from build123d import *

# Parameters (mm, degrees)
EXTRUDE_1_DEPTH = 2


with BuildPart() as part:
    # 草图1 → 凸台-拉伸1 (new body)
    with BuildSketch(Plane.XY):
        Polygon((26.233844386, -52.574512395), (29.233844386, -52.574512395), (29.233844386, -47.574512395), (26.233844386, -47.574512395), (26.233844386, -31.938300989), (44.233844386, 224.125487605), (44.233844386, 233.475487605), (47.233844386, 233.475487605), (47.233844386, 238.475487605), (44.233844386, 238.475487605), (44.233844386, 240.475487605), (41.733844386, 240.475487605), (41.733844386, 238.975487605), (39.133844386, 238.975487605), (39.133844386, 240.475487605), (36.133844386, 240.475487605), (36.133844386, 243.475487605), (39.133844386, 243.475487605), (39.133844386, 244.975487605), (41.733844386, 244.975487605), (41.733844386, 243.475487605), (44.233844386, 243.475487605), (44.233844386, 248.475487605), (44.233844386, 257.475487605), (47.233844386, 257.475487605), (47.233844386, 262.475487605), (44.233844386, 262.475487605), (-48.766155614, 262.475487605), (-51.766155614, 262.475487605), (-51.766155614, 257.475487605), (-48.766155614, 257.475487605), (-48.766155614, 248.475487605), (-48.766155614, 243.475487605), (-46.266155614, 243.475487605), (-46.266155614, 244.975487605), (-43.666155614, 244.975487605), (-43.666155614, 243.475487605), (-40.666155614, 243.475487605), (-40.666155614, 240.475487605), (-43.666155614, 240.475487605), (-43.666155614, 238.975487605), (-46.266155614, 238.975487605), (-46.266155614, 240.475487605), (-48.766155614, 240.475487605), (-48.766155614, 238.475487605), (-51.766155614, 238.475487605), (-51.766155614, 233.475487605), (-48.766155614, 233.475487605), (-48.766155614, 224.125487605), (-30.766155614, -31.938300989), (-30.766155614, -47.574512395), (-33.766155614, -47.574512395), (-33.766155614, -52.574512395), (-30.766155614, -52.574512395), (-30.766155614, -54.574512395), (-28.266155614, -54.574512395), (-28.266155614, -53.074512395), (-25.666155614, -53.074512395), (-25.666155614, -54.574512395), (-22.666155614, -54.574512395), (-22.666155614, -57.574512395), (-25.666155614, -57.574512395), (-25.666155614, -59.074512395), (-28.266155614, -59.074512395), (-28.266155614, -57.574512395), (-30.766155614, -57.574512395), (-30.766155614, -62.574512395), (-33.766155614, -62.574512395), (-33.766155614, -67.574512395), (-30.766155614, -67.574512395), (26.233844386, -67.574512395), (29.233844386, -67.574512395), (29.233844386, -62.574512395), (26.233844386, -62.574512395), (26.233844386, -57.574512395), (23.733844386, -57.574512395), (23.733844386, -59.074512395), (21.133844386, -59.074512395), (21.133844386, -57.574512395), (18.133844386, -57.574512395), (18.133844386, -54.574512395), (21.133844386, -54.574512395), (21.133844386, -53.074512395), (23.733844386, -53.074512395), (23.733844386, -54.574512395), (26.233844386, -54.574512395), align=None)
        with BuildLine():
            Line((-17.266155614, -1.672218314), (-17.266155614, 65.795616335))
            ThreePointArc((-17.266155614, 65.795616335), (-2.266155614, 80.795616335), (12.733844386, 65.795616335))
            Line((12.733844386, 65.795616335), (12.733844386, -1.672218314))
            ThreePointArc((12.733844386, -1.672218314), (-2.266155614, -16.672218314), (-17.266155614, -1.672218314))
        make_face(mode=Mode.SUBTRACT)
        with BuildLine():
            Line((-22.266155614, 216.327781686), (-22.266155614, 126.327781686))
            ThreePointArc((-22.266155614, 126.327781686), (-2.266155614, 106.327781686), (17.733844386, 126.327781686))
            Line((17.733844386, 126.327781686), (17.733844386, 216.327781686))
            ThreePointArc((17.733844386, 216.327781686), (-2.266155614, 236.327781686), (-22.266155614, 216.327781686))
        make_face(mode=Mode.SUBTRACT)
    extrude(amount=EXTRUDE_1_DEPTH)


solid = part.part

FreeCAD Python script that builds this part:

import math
import FreeCAD as App
import Part
import Sketcher
from FreeCAD import Vector
Q = App.Units.Quantity

doc = App.newDocument("Part")
body = doc.addObject("PartDesign::Body", "Body")

# Sketch on XY plane
sketch1 = body.newObject("Sketcher::SketchObject", "Sketch")
sketch1.AttachmentSupport = (doc.getObject("XY_Plane"), [""])
sketch1.MapMode = "FlatFace"
sketch1.addGeometry([
    Part.LineSegment(Vector(26.233844, -52.574512, 0), Vector(29.233844, -52.574512, 0)),  # 0
    Part.LineSegment(Vector(29.233844, -52.574512, 0), Vector(29.233844, -47.574512, 0)),  # 1
    Part.LineSegment(Vector(29.233844, -47.574512, 0), Vector(26.233844, -47.574512, 0)),  # 2
    Part.LineSegment(Vector(26.233844, -47.574512, 0), Vector(26.233844, -31.938301, 0)),  # 3
    Part.LineSegment(Vector(26.233844, -31.938301, 0), Vector(44.233844, 224.125488, 0)),  # 4
    Part.LineSegment(Vector(44.233844, 224.125488, 0), Vector(44.233844, 233.475488, 0)),  # 5
    Part.LineSegment(Vector(44.233844, 233.475488, 0), Vector(47.233844, 233.475488, 0)),  # 6
    Part.LineSegment(Vector(47.233844, 233.475488, 0), Vector(47.233844, 238.475488, 0)),  # 7
    Part.LineSegment(Vector(47.233844, 238.475488, 0), Vector(44.233844, 238.475488, 0)),  # 8
    Part.LineSegment(Vector(44.233844, 238.475488, 0), Vector(44.233844, 240.475488, 0)),  # 9
    Part.LineSegment(Vector(44.233844, 240.475488, 0), Vector(41.733844, 240.475488, 0)),  # 10
    Part.LineSegment(Vector(41.733844, 240.475488, 0), Vector(41.733844, 238.975488, 0)),  # 11
    Part.LineSegment(Vector(41.733844, 238.975488, 0), Vector(39.133844, 238.975488, 0)),  # 12
    Part.LineSegment(Vector(39.133844, 238.975488, 0), Vector(39.133844, 240.475488, 0)),  # 13
    Part.LineSegment(Vector(39.133844, 240.475488, 0), Vector(36.133844, 240.475488, 0)),  # 14
    Part.LineSegment(Vector(36.133844, 240.475488, 0), Vector(36.133844, 243.475488, 0)),  # 15
    Part.LineSegment(Vector(36.133844, 243.475488, 0), Vector(39.133844, 243.475488, 0)),  # 16
    Part.LineSegment(Vector(39.133844, 243.475488, 0), Vector(39.133844, 244.975488, 0)),  # 17
    Part.LineSegment(Vector(39.133844, 244.975488, 0), Vector(41.733844, 244.975488, 0)),  # 18
    Part.LineSegment(Vector(41.733844, 244.975488, 0), Vector(41.733844, 243.475488, 0)),  # 19
    Part.LineSegment(Vector(41.733844, 243.475488, 0), Vector(44.233844, 243.475488, 0)),  # 20
    Part.LineSegment(Vector(44.233844, 243.475488, 0), Vector(44.233844, 257.475488, 0)),  # 21
    Part.LineSegment(Vector(44.233844, 257.475488, 0), Vector(47.233844, 257.475488, 0)),  # 22
    Part.LineSegment(Vector(47.233844, 257.475488, 0), Vector(47.233844, 262.475488, 0)),  # 23
    Part.LineSegment(Vector(47.233844, 262.475488, 0), Vector(-51.766156, 262.475488, 0)),  # 24
    Part.LineSegment(Vector(-51.766156, 262.475488, 0), Vector(-51.766156, 257.475488, 0)),  # 25
    Part.LineSegment(Vector(-51.766156, 257.475488, 0), Vector(-48.766156, 257.475488, 0)),  # 26
    Part.LineSegment(Vector(-48.766156, 257.475488, 0), Vector(-48.766156, 243.475488, 0)),  # 27
    Part.LineSegment(Vector(-48.766156, 243.475488, 0), Vector(-46.266156, 243.475488, 0)),  # 28
    Part.LineSegment(Vector(-46.266156, 243.475488, 0), Vector(-46.266156, 244.975488, 0)),  # 29
    Part.LineSegment(Vector(-46.266156, 244.975488, 0), Vector(-43.666156, 244.975488, 0)),  # 30
    Part.LineSegment(Vector(-43.666156, 244.975488, 0), Vector(-43.666156, 243.475488, 0)),  # 31
    Part.LineSegment(Vector(-43.666156, 243.475488, 0), Vector(-40.666156, 243.475488, 0)),  # 32
    Part.LineSegment(Vector(-40.666156, 243.475488, 0), Vector(-40.666156, 240.475488, 0)),  # 33
    Part.LineSegment(Vector(-40.666156, 240.475488, 0), Vector(-43.666156, 240.475488, 0)),  # 34
    Part.LineSegment(Vector(-43.666156, 240.475488, 0), Vector(-43.666156, 238.975488, 0)),  # 35
    Part.LineSegment(Vector(-43.666156, 238.975488, 0), Vector(-46.266156, 238.975488, 0)),  # 36
    Part.LineSegment(Vector(-46.266156, 238.975488, 0), Vector(-46.266156, 240.475488, 0)),  # 37
    Part.LineSegment(Vector(-46.266156, 240.475488, 0), Vector(-48.766156, 240.475488, 0)),  # 38
    Part.LineSegment(Vector(-48.766156, 240.475488, 0), Vector(-48.766156, 238.475488, 0)),  # 39
    Part.LineSegment(Vector(-48.766156, 238.475488, 0), Vector(-51.766156, 238.475488, 0)),  # 40
    Part.LineSegment(Vector(-51.766156, 238.475488, 0), Vector(-51.766156, 233.475488, 0)),  # 41
    Part.LineSegment(Vector(-51.766156, 233.475488, 0), Vector(-48.766156, 233.475488, 0)),  # 42
    Part.LineSegment(Vector(-48.766156, 233.475488, 0), Vector(-48.766156, 224.125488, 0)),  # 43
    Part.LineSegment(Vector(-48.766156, 224.125488, 0), Vector(-30.766156, -31.938301, 0)),  # 44
    Part.LineSegment(Vector(-30.766156, -31.938301, 0), Vector(-30.766156, -47.574512, 0)),  # 45
    Part.LineSegment(Vector(-30.766156, -47.574512, 0), Vector(-33.766156, -47.574512, 0)),  # 46
    Part.LineSegment(Vector(-33.766156, -47.574512, 0), Vector(-33.766156, -52.574512, 0)),  # 47
    Part.LineSegment(Vector(-33.766156, -52.574512, 0), Vector(-30.766156, -52.574512, 0)),  # 48
    Part.LineSegment(Vector(-30.766156, -52.574512, 0), Vector(-30.766156, -54.574512, 0)),  # 49
    Part.LineSegment(Vector(-30.766156, -54.574512, 0), Vector(-28.266156, -54.574512, 0)),  # 50
    Part.LineSegment(Vector(-28.266156, -54.574512, 0), Vector(-28.266156, -53.074512, 0)),  # 51
    Part.LineSegment(Vector(-28.266156, -53.074512, 0), Vector(-25.666156, -53.074512, 0)),  # 52
    Part.LineSegment(Vector(-25.666156, -53.074512, 0), Vector(-25.666156, -54.574512, 0)),  # 53
    Part.LineSegment(Vector(-25.666156, -54.574512, 0), Vector(-22.666156, -54.574512, 0)),  # 54
    Part.LineSegment(Vector(-22.666156, -54.574512, 0), Vector(-22.666156, -57.574512, 0)),  # 55
    Part.LineSegment(Vector(-22.666156, -57.574512, 0), Vector(-25.666156, -57.574512, 0)),  # 56
    Part.LineSegment(Vector(-25.666156, -57.574512, 0), Vector(-25.666156, -59.074512, 0)),  # 57
    Part.LineSegment(Vector(-25.666156, -59.074512, 0), Vector(-28.266156, -59.074512, 0)),  # 58
    Part.LineSegment(Vector(-28.266156, -59.074512, 0), Vector(-28.266156, -57.574512, 0)),  # 59
    Part.LineSegment(Vector(-28.266156, -57.574512, 0), Vector(-30.766156, -57.574512, 0)),  # 60
    Part.LineSegment(Vector(-30.766156, -57.574512, 0), Vector(-30.766156, -62.574512, 0)),  # 61
    Part.LineSegment(Vector(-30.766156, -62.574512, 0), Vector(-33.766156, -62.574512, 0)),  # 62
    Part.LineSegment(Vector(-33.766156, -62.574512, 0), Vector(-33.766156, -67.574512, 0)),  # 63
    Part.LineSegment(Vector(-33.766156, -67.574512, 0), Vector(29.233844, -67.574512, 0)),  # 64
    Part.LineSegment(Vector(29.233844, -67.574512, 0), Vector(29.233844, -62.574512, 0)),  # 65
    Part.LineSegment(Vector(29.233844, -62.574512, 0), Vector(26.233844, -62.574512, 0)),  # 66
    Part.LineSegment(Vector(26.233844, -62.574512, 0), Vector(26.233844, -57.574512, 0)),  # 67
    Part.LineSegment(Vector(26.233844, -57.574512, 0), Vector(23.733844, -57.574512, 0)),  # 68
    Part.LineSegment(Vector(23.733844, -57.574512, 0), Vector(23.733844, -59.074512, 0)),  # 69
    Part.LineSegment(Vector(23.733844, -59.074512, 0), Vector(21.133844, -59.074512, 0)),  # 70
    Part.LineSegment(Vector(21.133844, -59.074512, 0), Vector(21.133844, -57.574512, 0)),  # 71
    Part.LineSegment(Vector(21.133844, -57.574512, 0), Vector(18.133844, -57.574512, 0)),  # 72
    Part.LineSegment(Vector(18.133844, -57.574512, 0), Vector(18.133844, -54.574512, 0)),  # 73
    Part.LineSegment(Vector(18.133844, -54.574512, 0), Vector(21.133844, -54.574512, 0)),  # 74
    Part.LineSegment(Vector(21.133844, -54.574512, 0), Vector(21.133844, -53.074512, 0)),  # 75
    Part.LineSegment(Vector(21.133844, -53.074512, 0), Vector(23.733844, -53.074512, 0)),  # 76
    Part.LineSegment(Vector(23.733844, -53.074512, 0), Vector(23.733844, -54.574512, 0)),  # 77
    Part.LineSegment(Vector(23.733844, -54.574512, 0), Vector(26.233844, -54.574512, 0)),  # 78
    Part.LineSegment(Vector(26.233844, -54.574512, 0), Vector(26.233844, -52.574512, 0)),  # 79
    Part.ArcOfCircle(Part.Circle(Vector(-2.266156, -1.672218, 0), Vector(0, 0, 1), 15), math.radians(180), math.radians(360)),  # 80
    Part.LineSegment(Vector(-17.266156, -1.672218, 0), Vector(-17.266156, 65.795616, 0)),  # 81
    Part.ArcOfCircle(Part.Circle(Vector(-2.266156, 65.795616, 0), Vector(0, 0, 1), 15), math.radians(0), math.radians(180)),  # 82
    Part.LineSegment(Vector(12.733844, 65.795616, 0), Vector(12.733844, -1.672218, 0)),  # 83
    Part.LineSegment(Vector(-22.266156, 126.327782, 0), Vector(-22.266156, 216.327782, 0)),  # 84
    Part.ArcOfCircle(Part.Circle(Vector(-2.266156, 216.327782, 0), Vector(0, 0, 1), 20), math.radians(0), math.radians(180)),  # 85
    Part.LineSegment(Vector(17.733844, 216.327782, 0), Vector(17.733844, 126.327782, 0)),  # 86
    Part.ArcOfCircle(Part.Circle(Vector(-2.266156, 126.327782, 0), Vector(0, 0, 1), 20), math.radians(180), math.radians(360)),  # 87
], False)
sketch1.addConstraint([
    Sketcher.Constraint("Coincident", 0, 2, 1, 1),
    Sketcher.Constraint("Coincident", 1, 2, 2, 1),
    Sketcher.Constraint("Coincident", 2, 2, 3, 1),
    Sketcher.Constraint("Coincident", 3, 2, 4, 1),
    Sketcher.Constraint("Coincident", 4, 2, 5, 1),
    Sketcher.Constraint("Coincident", 5, 2, 6, 1),
    Sketcher.Constraint("Coincident", 6, 2, 7, 1),
    Sketcher.Constraint("Coincident", 7, 2, 8, 1),
    Sketcher.Constraint("Coincident", 8, 2, 9, 1),
    Sketcher.Constraint("Coincident", 9, 2, 10, 1),
    Sketcher.Constraint("Coincident", 10, 2, 11, 1),
    Sketcher.Constraint("Coincident", 11, 2, 12, 1),
    Sketcher.Constraint("Coincident", 12, 2, 13, 1),
    Sketcher.Constraint("Coincident", 13, 2, 14, 1),
    Sketcher.Constraint("Coincident", 14, 2, 15, 1),
    Sketcher.Constraint("Coincident", 15, 2, 16, 1),
    Sketcher.Constraint("Coincident", 16, 2, 17, 1),
    Sketcher.Constraint("Coincident", 17, 2, 18, 1),
    Sketcher.Constraint("Coincident", 18, 2, 19, 1),
    Sketcher.Constraint("Coincident", 19, 2, 20, 1),
    Sketcher.Constraint("Coincident", 20, 2, 21, 1),
    Sketcher.Constraint("Coincident", 21, 2, 22, 1),
    Sketcher.Constraint("Coincident", 22, 2, 23, 1),
    Sketcher.Constraint("Coincident", 23, 2, 24, 1),
    Sketcher.Constraint("Coincident", 24, 2, 25, 1),
    Sketcher.Constraint("Coincident", 25, 2, 26, 1),
    Sketcher.Constraint("Coincident", 26, 2, 27, 1),
    Sketcher.Constraint("Coincident", 27, 2, 28, 1),
    Sketcher.Constraint("Coincident", 28, 2, 29, 1),
    Sketcher.Constraint("Coincident", 29, 2, 30, 1),
    Sketcher.Constraint("Coincident", 30, 2, 31, 1),
    Sketcher.Constraint("Coincident", 31, 2, 32, 1),
    Sketcher.Constraint("Coincident", 32, 2, 33, 1),
    Sketcher.Constraint("Coincident", 33, 2, 34, 1),
    Sketcher.Constraint("Coincident", 34, 2, 35, 1),
    Sketcher.Constraint("Coincident", 35, 2, 36, 1),
    Sketcher.Constraint("Coincident", 36, 2, 37, 1),
    Sketcher.Constraint("Coincident", 37, 2, 38, 1),
    Sketcher.Constraint("Coincident", 38, 2, 39, 1),
    Sketcher.Constraint("Coincident", 39, 2, 40, 1),
    Sketcher.Constraint("Coincident", 40, 2, 41, 1),
    Sketcher.Constraint("Coincident", 41, 2, 42, 1),
    Sketcher.Constraint("Coincident", 42, 2, 43, 1),
    Sketcher.Constraint("Coincident", 43, 2, 44, 1),
    Sketcher.Constraint("Coincident", 44, 2, 45, 1),
    Sketcher.Constraint("Coincident", 45, 2, 46, 1),
    Sketcher.Constraint("Coincident", 46, 2, 47, 1),
    Sketcher.Constraint("Coincident", 47, 2, 48, 1),
    Sketcher.Constraint("Coincident", 48, 2, 49, 1),
    Sketcher.Constraint("Coincident", 49, 2, 50, 1),
    Sketcher.Constraint("Coincident", 50, 2, 51, 1),
    Sketcher.Constraint("Coincident", 51, 2, 52, 1),
    Sketcher.Constraint("Coincident", 52, 2, 53, 1),
    Sketcher.Constraint("Coincident", 53, 2, 54, 1),
    Sketcher.Constraint("Coincident", 54, 2, 55, 1),
    Sketcher.Constraint("Coincident", 55, 2, 56, 1),
    Sketcher.Constraint("Coincident", 56, 2, 57, 1),
    Sketcher.Constraint("Coincident", 57, 2, 58, 1),
    Sketcher.Constraint("Coincident", 58, 2, 59, 1),
    Sketcher.Constraint("Coincident", 59, 2, 60, 1),
    Sketcher.Constraint("Coincident", 60, 2, 61, 1),
    Sketcher.Constraint("Coincident", 61, 2, 62, 1),
    Sketcher.Constraint("Coincident", 62, 2, 63, 1),
    Sketcher.Constraint("Coincident", 63, 2, 64, 1),
    Sketcher.Constraint("Coincident", 64, 2, 65, 1),
    Sketcher.Constraint("Coincident", 65, 2, 66, 1),
    Sketcher.Constraint("Coincident", 66, 2, 67, 1),
    Sketcher.Constraint("Coincident", 67, 2, 68, 1),
    Sketcher.Constraint("Coincident", 68, 2, 69, 1),
    Sketcher.Constraint("Coincident", 69, 2, 70, 1),
    Sketcher.Constraint("Coincident", 70, 2, 71, 1),
    Sketcher.Constraint("Coincident", 71, 2, 72, 1),
    Sketcher.Constraint("Coincident", 72, 2, 73, 1),
    Sketcher.Constraint("Coincident", 73, 2, 74, 1),
    Sketcher.Constraint("Coincident", 74, 2, 75, 1),
    Sketcher.Constraint("Coincident", 75, 2, 76, 1),
    Sketcher.Constraint("Coincident", 76, 2, 77, 1),
    Sketcher.Constraint("Coincident", 77, 2, 78, 1),
    Sketcher.Constraint("Coincident", 78, 2, 79, 1),
    Sketcher.Constraint("Coincident", 79, 2, 0, 1),
    Sketcher.Constraint("Tangent", 80, 1, 81, 1),
    Sketcher.Constraint("Tangent", 81, 2, 82, 2),
    Sketcher.Constraint("Tangent", 82, 1, 83, 1),
    Sketcher.Constraint("Tangent", 83, 2, 80, 2),
    Sketcher.Constraint("Tangent", 84, 2, 85, 2),
    Sketcher.Constraint("Tangent", 85, 1, 86, 1),
    Sketcher.Constraint("Tangent", 86, 2, 87, 2),
    Sketcher.Constraint("Tangent", 87, 1, 84, 1),
    Sketcher.Constraint("Horizontal", 0),
    Sketcher.Constraint("Vertical", 1),
    Sketcher.Constraint("Horizontal", 2),
    Sketcher.Constraint("Vertical", 3),
    Sketcher.Constraint("Vertical", 5),
    Sketcher.Constraint("Horizontal", 6),
    Sketcher.Constraint("Vertical", 7),
    Sketcher.Constraint("Horizontal", 8),
    Sketcher.Constraint("Vertical", 9),
    Sketcher.Constraint("Horizontal", 10),
    Sketcher.Constraint("Vertical", 11),
    Sketcher.Constraint("Horizontal", 12),
    Sketcher.Constraint("Vertical", 13),
    Sketcher.Constraint("Horizontal", 14),
    Sketcher.Constraint("Vertical", 15),
    Sketcher.Constraint("Horizontal", 16),
    Sketcher.Constraint("Vertical", 17),
    Sketcher.Constraint("Horizontal", 18),
    Sketcher.Constraint("Vertical", 19),
    Sketcher.Constraint("Horizontal", 20),
    Sketcher.Constraint("Vertical", 21),
    Sketcher.Constraint("Horizontal", 22),
    Sketcher.Constraint("Vertical", 23),
    Sketcher.Constraint("Horizontal", 24),
    Sketcher.Constraint("Vertical", 25),
    Sketcher.Constraint("Horizontal", 26),
    Sketcher.Constraint("Vertical", 27),
    Sketcher.Constraint("Horizontal", 28),
    Sketcher.Constraint("Vertical", 29),
    Sketcher.Constraint("Horizontal", 30),
    Sketcher.Constraint("Vertical", 31),
    Sketcher.Constraint("Horizontal", 32),
    Sketcher.Constraint("Vertical", 33),
    Sketcher.Constraint("Horizontal", 34),
    Sketcher.Constraint("Vertical", 35),
    Sketcher.Constraint("Horizontal", 36),
    Sketcher.Constraint("Vertical", 37),
    Sketcher.Constraint("Horizontal", 38),
    Sketcher.Constraint("Vertical", 39),
    Sketcher.Constraint("Horizontal", 40),
    Sketcher.Constraint("Vertical", 41),
    Sketcher.Constraint("Horizontal", 42),
    Sketcher.Constraint("Vertical", 43),
    Sketcher.Constraint("Vertical", 45),
    Sketcher.Constraint("Horizontal", 46),
    Sketcher.Constraint("Vertical", 47),
    Sketcher.Constraint("Horizontal", 48),
    Sketcher.Constraint("Vertical", 49),
    Sketcher.Constraint("Horizontal", 50),
    Sketcher.Constraint("Vertical", 51),
    Sketcher.Constraint("Horizontal", 52),
    Sketcher.Constraint("Vertical", 53),
    Sketcher.Constraint("Horizontal", 54),
    Sketcher.Constraint("Vertical", 55),
    Sketcher.Constraint("Horizontal", 56),
    Sketcher.Constraint("Vertical", 57),
    Sketcher.Constraint("Horizontal", 58),
    Sketcher.Constraint("Vertical", 59),
    Sketcher.Constraint("Horizontal", 60),
    Sketcher.Constraint("Vertical", 61),
    Sketcher.Constraint("Horizontal", 62),
    Sketcher.Constraint("Vertical", 63),
    Sketcher.Constraint("Horizontal", 64),
    Sketcher.Constraint("Vertical", 65),
    Sketcher.Constraint("Horizontal", 66),
    Sketcher.Constraint("Vertical", 67),
    Sketcher.Constraint("Horizontal", 68),
    Sketcher.Constraint("Vertical", 69),
    Sketcher.Constraint("Horizontal", 70),
    Sketcher.Constraint("Vertical", 71),
    Sketcher.Constraint("Horizontal", 72),
    Sketcher.Constraint("Vertical", 73),
    Sketcher.Constraint("Horizontal", 74),
    Sketcher.Constraint("Vertical", 75),
    Sketcher.Constraint("Horizontal", 76),
    Sketcher.Constraint("Vertical", 77),
    Sketcher.Constraint("Horizontal", 78),
    Sketcher.Constraint("Vertical", 79),
    Sketcher.Constraint("Vertical", 81),
    Sketcher.Constraint("Vertical", 83),
    Sketcher.Constraint("Vertical", 84),
    Sketcher.Constraint("Vertical", 86),
    Sketcher.Constraint("Horizontal", 10, 2, 13, 2),
    Sketcher.Constraint("Horizontal", 16, 2, 19, 2),
    Sketcher.Constraint("Horizontal", 22, 2, 25, 2),
    Sketcher.Constraint("Horizontal", 20, 2, 27, 2),
    Sketcher.Constraint("Horizontal", 18, 2, 29, 2),
    Sketcher.Constraint("Horizontal", 28, 2, 31, 2),
    Sketcher.Constraint("Horizontal", 14, 2, 33, 2),
    Sketcher.Constraint("Horizontal", 12, 2, 35, 2),
    Sketcher.Constraint("Horizontal", 34, 2, 37, 2),
    Sketcher.Constraint("Horizontal", 8, 2, 39, 2),
    Sketcher.Constraint("Horizontal", 6, 2, 41, 2),
    Sketcher.Constraint("Horizontal", 4, 2, 43, 2),
    Sketcher.Constraint("Horizontal", 3, 2, 44, 2),
    Sketcher.Constraint("Horizontal", 2, 2, 45, 2),
    Sketcher.Constraint("Horizontal", 0, 2, 47, 2),
    Sketcher.Constraint("Horizontal", 50, 2, 53, 2),
    Sketcher.Constraint("Horizontal", 56, 2, 59, 2),
    Sketcher.Constraint("Horizontal", 62, 2, 65, 2),
    Sketcher.Constraint("Horizontal", 60, 2, 67, 2),
    Sketcher.Constraint("Horizontal", 58, 2, 69, 2),
    Sketcher.Constraint("Horizontal", 68, 2, 71, 2),
    Sketcher.Constraint("Horizontal", 54, 2, 73, 2),
    Sketcher.Constraint("Horizontal", 52, 2, 75, 2),
    Sketcher.Constraint("Horizontal", 74, 2, 77, 2),
    Sketcher.Constraint("Vertical", 82, 3, 85, 3),
    Sketcher.Constraint("Vertical", 5, 2, 8, 2),
    Sketcher.Constraint("Vertical", 13, 2, 16, 2),
    Sketcher.Constraint("Vertical", 11, 2, 18, 2),
    Sketcher.Constraint("Vertical", 9, 2, 20, 2),
    Sketcher.Constraint("Vertical", 7, 2, 22, 2),
    Sketcher.Constraint("Vertical", 31, 2, 34, 2),
    Sketcher.Constraint("Vertical", 29, 2, 36, 2),
    Sketcher.Constraint("Vertical", 27, 2, 38, 2),
    Sketcher.Constraint("Vertical", 25, 2, 40, 2),
    Sketcher.Constraint("Vertical", 39, 2, 42, 2),
    Sketcher.Constraint("Vertical", 45, 2, 48, 2),
    Sketcher.Constraint("Vertical", 53, 2, 56, 2),
    Sketcher.Constraint("Vertical", 51, 2, 58, 2),
    Sketcher.Constraint("Vertical", 49, 2, 60, 2),
    Sketcher.Constraint("Vertical", 47, 2, 62, 2),
    Sketcher.Constraint("Vertical", 1, 2, 64, 2),
    Sketcher.Constraint("Vertical", 3, 2, 66, 2),
    Sketcher.Constraint("Vertical", 71, 2, 74, 2),
    Sketcher.Constraint("Vertical", 69, 2, 76, 2),
    Sketcher.Constraint("Vertical", 67, 2, 78, 2),
    Sketcher.Constraint("Equal", 2, 6),
    Sketcher.Constraint("Equal", 8, 14),
    Sketcher.Constraint("Equal", 22, 26),
    Sketcher.Constraint("Equal", 20, 28),
    Sketcher.Constraint("Equal", 18, 30),
    Sketcher.Constraint("Equal", 26, 32),
    Sketcher.Constraint("Equal", 42, 46),
    Sketcher.Constraint("Equal", 38, 50),
    Sketcher.Constraint("Equal", 36, 52),
    Sketcher.Constraint("Equal", 48, 54),
    Sketcher.Constraint("Equal", 60, 68),
    Sketcher.Constraint("Equal", 58, 70),
    Sketcher.Constraint("Equal", 66, 72),
    Sketcher.Constraint("Equal", 1, 7),
    Sketcher.Constraint("Equal", 74, 15),
    Sketcher.Constraint("Equal", 13, 17),
    Sketcher.Constraint("Equal", 7, 23),
    Sketcher.Constraint("Equal", 39, 49),
    Sketcher.Constraint("Equal", 37, 51),
    Sketcher.Constraint("Equal", 33, 55),
    Sketcher.Constraint("Equal", 53, 57),
    Sketcher.Constraint("Equal", 47, 61),
    Sketcher.Constraint("Equal", 61, 63),
    Sketcher.Constraint("Equal", 4, 44),
    Sketcher.Constraint("Radius", 80, Q("15 mm")),
    Sketcher.Constraint("Radius", 85, Q("20 mm")),
    Sketcher.Constraint("DistanceX", 0, 1, 0, 2, Q("3 mm")),
    Sketcher.Constraint("DistanceX", 24, 2, 24, 1, Q("99 mm")),
    Sketcher.Constraint("DistanceX", 64, 1, 64, 2, Q("63 mm")),
    Sketcher.Constraint("DistanceY", 1, 1, 1, 2, Q("5 mm")),
    Sketcher.Constraint("DistanceY", 9, 1, 9, 2, Q("2 mm")),
    Sketcher.Constraint("DistanceY", 21, 1, 21, 2, Q("14 mm")),
    Sketcher.Constraint("DistanceY", 84, 1, 84, 2, Q("90 mm")),
    Sketcher.Constraint("DistanceX", 10, 2, 10, 1, Q("2.5 mm")),
    Sketcher.Constraint("DistanceX", 12, 2, 12, 1, Q("2.6 mm")),
    Sketcher.Constraint("DistanceY", 11, 2, 11, 1, Q("1.5 mm")),
    Sketcher.Constraint("DistanceY", 5, 1, 5, 2, Q("9.35 mm")),
    Sketcher.Constraint("DistanceY", 3, 1, 3, 2, Q("15.636211 mm")),
    Sketcher.Constraint("DistanceY", 3, 2, -1, 1, Q("31.938301 mm")),
    Sketcher.Constraint("DistanceY", 81, 1, 81, 2, Q("67.467835 mm")),
    Sketcher.Constraint("DistanceY", 80, 3, -1, 1, Q("1.672218 mm")),
    Sketcher.Constraint("DistanceY", -1, 1, 85, 3, Q("216.327782 mm")),
    Sketcher.Constraint("Distance", 4, Q("256.695664 mm")),
    Sketcher.Constraint("DistanceX", 80, 3, -1, 1, Q("2.266156 mm")),
    Sketcher.Constraint("DistanceX", -1, 1, 0, 2, Q("29.233844 mm")),
])
pad1 = body.newObject("PartDesign::Pad", "Pad")
pad1.Profile = sketch1
pad1.Length = 2

doc.recompute()
